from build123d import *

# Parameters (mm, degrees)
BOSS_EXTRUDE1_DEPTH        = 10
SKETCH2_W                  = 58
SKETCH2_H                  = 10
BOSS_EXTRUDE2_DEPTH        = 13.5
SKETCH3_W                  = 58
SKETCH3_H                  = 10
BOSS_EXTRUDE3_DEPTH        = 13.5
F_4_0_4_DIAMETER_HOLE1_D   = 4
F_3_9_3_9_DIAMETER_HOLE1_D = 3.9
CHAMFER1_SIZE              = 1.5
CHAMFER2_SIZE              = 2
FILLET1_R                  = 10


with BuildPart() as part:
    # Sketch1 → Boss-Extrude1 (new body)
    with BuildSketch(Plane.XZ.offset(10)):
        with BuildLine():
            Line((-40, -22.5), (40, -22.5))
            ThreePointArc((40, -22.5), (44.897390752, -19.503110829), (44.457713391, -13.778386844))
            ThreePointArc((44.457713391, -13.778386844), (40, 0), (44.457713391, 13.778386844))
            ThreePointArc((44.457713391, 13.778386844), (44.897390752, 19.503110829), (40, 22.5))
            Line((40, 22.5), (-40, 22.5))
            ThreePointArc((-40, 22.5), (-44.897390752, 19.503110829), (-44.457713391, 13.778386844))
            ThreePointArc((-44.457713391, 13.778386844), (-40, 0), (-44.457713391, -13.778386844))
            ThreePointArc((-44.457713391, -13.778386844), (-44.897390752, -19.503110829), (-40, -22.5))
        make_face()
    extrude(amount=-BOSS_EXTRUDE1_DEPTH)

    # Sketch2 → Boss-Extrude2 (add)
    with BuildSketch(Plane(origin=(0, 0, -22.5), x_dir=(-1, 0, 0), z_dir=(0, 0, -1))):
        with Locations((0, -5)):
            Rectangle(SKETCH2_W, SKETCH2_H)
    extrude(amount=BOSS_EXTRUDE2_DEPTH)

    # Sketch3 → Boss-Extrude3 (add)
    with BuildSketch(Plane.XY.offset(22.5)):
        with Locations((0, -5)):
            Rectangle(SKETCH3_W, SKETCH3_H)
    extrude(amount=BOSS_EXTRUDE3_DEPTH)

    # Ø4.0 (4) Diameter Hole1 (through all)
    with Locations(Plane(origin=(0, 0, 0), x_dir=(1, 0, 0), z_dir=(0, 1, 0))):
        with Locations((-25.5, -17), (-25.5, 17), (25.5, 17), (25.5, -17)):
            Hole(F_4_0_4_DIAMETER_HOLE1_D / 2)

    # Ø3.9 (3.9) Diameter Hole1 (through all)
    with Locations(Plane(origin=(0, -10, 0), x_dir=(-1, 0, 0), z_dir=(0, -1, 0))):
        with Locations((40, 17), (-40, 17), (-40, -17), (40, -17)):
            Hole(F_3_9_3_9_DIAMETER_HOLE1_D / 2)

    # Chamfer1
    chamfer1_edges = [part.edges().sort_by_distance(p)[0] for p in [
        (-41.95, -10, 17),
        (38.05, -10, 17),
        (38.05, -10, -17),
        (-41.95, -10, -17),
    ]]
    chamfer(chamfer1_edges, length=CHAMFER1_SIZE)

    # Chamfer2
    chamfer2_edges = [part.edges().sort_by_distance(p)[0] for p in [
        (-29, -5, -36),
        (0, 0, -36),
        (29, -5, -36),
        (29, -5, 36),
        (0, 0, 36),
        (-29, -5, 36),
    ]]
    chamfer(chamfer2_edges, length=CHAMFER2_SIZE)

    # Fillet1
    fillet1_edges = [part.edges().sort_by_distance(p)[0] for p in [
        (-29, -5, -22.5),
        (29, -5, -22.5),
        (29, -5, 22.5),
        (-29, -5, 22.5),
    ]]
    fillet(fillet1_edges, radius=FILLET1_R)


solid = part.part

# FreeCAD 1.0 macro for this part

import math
import FreeCAD as App
import Part
import Sketcher

V = App.Vector
Q = App.Units.Quantity


def edges_at(feature, points):
    """Names of the edges that pass closest to the given points."""
    edges = feature.Shape.Edges
    near = lambda p: min(range(len(edges)), key=lambda i: edges[i].distToShape(Part.Vertex(*p))[0])
    return sorted({f"Edge{near(p) + 1}" for p in points})

doc = App.newDocument("Part")
body = doc.addObject("PartDesign::Body", "Body")

sketch1 = body.newObject("Sketcher::SketchObject", "Sketch")
sketch1.AttachmentSupport = (doc.getObject("XZ_Plane"), [""])
sketch1.MapMode = "FlatFace"
sketch1.AttachmentOffset = App.Placement(V(0, 0, 10), App.Rotation())
sketch1.addGeometry(Part.LineSegment(V(-40, -22, 0), V(40, -22, 0)), False)
sketch1.addGeometry(Part.ArcOfCircle(Part.Circle(V(40, -17, 0), V(0, 0, 1), 6), math.radians(-90), math.radians(36)), False)
sketch1.addGeometry(Part.ArcOfCircle(Part.Circle(V(64, 0, 0), V(0, 0, 1), 24), math.radians(144), math.radians(216)), False)
sketch1.addGeometry(Part.ArcOfCircle(Part.Circle(V(40, 17, 0), V(0, 0, 1), 6), math.radians(-36), math.radians(90)), False)
sketch1.addGeometry(Part.LineSegment(V(40, 22, 0), V(-40, 22, 0)), False)
sketch1.addGeometry(Part.ArcOfCircle(Part.Circle(V(-40, 17, 0), V(0, 0, 1), 6), math.radians(90), math.radians(216)), False)
sketch1.addGeometry(Part.ArcOfCircle(Part.Circle(V(-64, 0, 0), V(0, 0, 1), 24), math.radians(-36), math.radians(36)), False)
sketch1.addGeometry(Part.ArcOfCircle(Part.Circle(V(-40, -17, 0), V(0, 0, 1), 6), math.radians(144), math.radians(270)), False)
sketch1.addConstraint(Sketcher.Constraint("Tangent", 0, 2, 1, 1))
sketch1.addConstraint(Sketcher.Constraint("Tangent", 1, 2, 2, 2))
sketch1.addConstraint(Sketcher.Constraint("Tangent", 2, 1, 3, 1))
sketch1.addConstraint(Sketcher.Constraint("Tangent", 3, 2, 4, 1))
sketch1.addConstraint(Sketcher.Constraint("Tangent", 4, 2, 5, 1))
sketch1.addConstraint(Sketcher.Constraint("Tangent", 5, 2, 6, 2))
sketch1.addConstraint(Sketcher.Constraint("Tangent", 6, 1, 7, 1))
sketch1.addConstraint(Sketcher.Constraint("Tangent", 7, 2, 0, 1))
sketch1.addConstraint(Sketcher.Constraint("Horizontal", 0))
sketch1.addConstraint(Sketcher.Constraint("Horizontal", 4))
sketch1.addConstraint(Sketcher.Constraint("Equal", 1, 3))
sketch1.addConstraint(Sketcher.Constraint("Equal", 3, 5))
sketch1.addConstraint(Sketcher.Constraint("Equal", 2, 6))
sketch1.addConstraint(Sketcher.Constraint("Equal", 5, 7))
sketch1.addConstraint(Sketcher.Constraint("Symmetric", 1, 3, 5, 3, -1, 1))
sketch1.addConstraint(Sketcher.Constraint("Symmetric", 2, 3, 6, 3, -2))
sketch1.addConstraint(Sketcher.Constraint("Radius", 1, Q("5.5 mm")))
sketch1.addConstraint(Sketcher.Constraint("DistanceX", 0, 1, 0, 2, Q("80 mm")))
sketch1.addConstraint(Sketcher.Constraint("DistanceY", 1, 3, -1, 1, Q("17 mm")))
sketch1.addConstraint(Sketcher.Constraint("Radius", 2, Q("23.522727 mm")))
pad1 = body.newObject("PartDesign::Pad", "Pad")
pad1.Profile = sketch1
pad1.Length = 10
pad1.Reversed = True

sketch2 = body.newObject("Sketcher::SketchObject", "Sketch001")
sketch2.AttachmentSupport = (doc.getObject("XY_Plane"), [""])
sketch2.MapMode = "FlatFace"
sketch2.AttachmentOffset = App.Placement(V(0, 0, -22.5), App.Rotation())
sketch2.addGeometry(Part.LineSegment(V(29, 0, 0), V(29, -10, 0)), False)
sketch2.addGeometry(Part.LineSegment(V(29, -10, 0), V(-29, -10, 0)), False)
sketch2.addGeometry(Part.LineSegment(V(-29, -10, 0), V(-29, 0, 0)), False)
sketch2.addGeometry(Part.LineSegment(V(-29, 0, 0), V(29, 0, 0)), False)
sketch2.addConstraint(Sketcher.Constraint("Coincident", 0, 2, 1, 1))
sketch2.addConstraint(Sketcher.Constraint("Coincident", 1, 2, 2, 1))
sketch2.addConstraint(Sketcher.Constraint("Coincident", 2, 2, 3, 1))
sketch2.addConstraint(Sketcher.Constraint("Coincident", 3, 2, 0, 1))
sketch2.addConstraint(Sketcher.Constraint("Vertical", 0))
sketch2.addConstraint(Sketcher.Constraint("Horizontal", 1))
sketch2.addConstraint(Sketcher.Constraint("Vertical", 2))
sketch2.addConstraint(Sketcher.Constraint("Horizontal", 3))
sketch2.addConstraint(Sketcher.Constraint("Symmetric", 2, 2, 3, 2, -1, 1))
sketch2.addConstraint(Sketcher.Constraint("DistanceX", 1, 2, 1, 1, Q("58 mm")))
sketch2.addConstraint(Sketcher.Constraint("DistanceY", 0, 2, 0, 1, Q("10 mm")))
pad2 = body.newObject("PartDesign::Pad", "Pad001")
pad2.Profile = sketch2
pad2.Length = 13.5
pad2.Reversed = True

sketch3 = body.newObject("Sketcher::SketchObject", "Sketch002")
sketch3.AttachmentSupport = (doc.getObject("XY_Plane"), [""])
sketch3.MapMode = "FlatFace"
sketch3.AttachmentOffset = App.Placement(V(0, 0, 22.5), App.Rotation())
sketch3.addGeometry(Part.LineSegment(V(-29, 0, 0), V(-29, -10, 0)), False)
sketch3.addGeometry(Part.LineSegment(V(-29, -10, 0), V(29, -10, 0)), False)
sketch3.addGeometry(Part.LineSegment(V(29, -10, 0), V(29, 0, 0)), False)
sketch3.addGeometry(Part.LineSegment(V(29, 0, 0), V(-29, 0, 0)), False)
sketch3.addConstraint(Sketcher.Constraint("Coincident", 0, 2, 1, 1))
sketch3.addConstraint(Sketcher.Constraint("Coincident", 1, 2, 2, 1))
sketch3.addConstraint(Sketcher.Constraint("Coincident", 2, 2, 3, 1))
sketch3.addConstraint(Sketcher.Constraint("Coincident", 3, 2, 0, 1))
sketch3.addConstraint(Sketcher.Constraint("Vertical", 0))
sketch3.addConstraint(Sketcher.Constraint("Horizontal", 1))
sketch3.addConstraint(Sketcher.Constraint("Vertical", 2))
sketch3.addConstraint(Sketcher.Constraint("Horizontal", 3))
sketch3.addConstraint(Sketcher.Constraint("Symmetric", 2, 2, 3, 2, -1, 1))
sketch3.addConstraint(Sketcher.Constraint("DistanceX", 1, 1, 1, 2, Q("58 mm")))
sketch3.addConstraint(Sketcher.Constraint("DistanceY", 0, 2, 0, 1, Q("10 mm")))
pad3 = body.newObject("PartDesign::Pad", "Pad002")
pad3.Profile = sketch3
pad3.Length = 13.5

sketch4 = body.newObject("Sketcher::SketchObject", "Sketch003")
sketch4.AttachmentSupport = (doc.getObject("XZ_Plane"), [""])
sketch4.MapMode = "FlatFace"
sketch4.addGeometry(Part.Circle(V(-25.5, 17, 0), V(0, 0, 1), 2), False)
sketch4.addGeometry(Part.Circle(V(-25.5, -17, 0), V(0, 0, 1), 2), False)
sketch4.addGeometry(Part.Circle(V(25.5, -17, 0), V(0, 0, 1), 2), False)
sketch4.addGeometry(Part.Circle(V(25.5, 17, 0), V(0, 0, 1), 2), False)
sketch4.addConstraint(Sketcher.Constraint("Equal", 0, 1))
sketch4.addConstraint(Sketcher.Constraint("Equal", 1, 2))
sketch4.addConstraint(Sketcher.Constraint("Equal", 2, 3))
sketch4.addConstraint(Sketcher.Constraint("Symmetric", 0, 3, 2, 3, -1, 1))
sketch4.addConstraint(Sketcher.Constraint("Symmetric", 1, 3, 3, 3, -1, 1))
sketch4.addConstraint(Sketcher.Constraint("Symmetric", 1, 3, 2, 3, -2))
sketch4.addConstraint(Sketcher.Constraint("Diameter", 0, Q("4 mm")))
sketch4.addConstraint(Sketcher.Constraint("DistanceY", -1, 1, 0, 3, Q("17 mm")))
sketch4.addConstraint(Sketcher.Constraint("DistanceX", 1, 3, 2, 3, Q("51 mm")))
doc.recompute()
hole = body.newObject("PartDesign::Hole", "Hole")
hole.Profile = sketch4
hole.ThreadType = "None"
hole.Diameter = 4
hole.DepthType = "ThroughAll"
hole.Reversed = True

sketch5 = body.newObject("Sketcher::SketchObject", "Sketch004")
sketch5.AttachmentSupport = (doc.getObject("XZ_Plane"), [""])
sketch5.MapMode = "FlatFace"
sketch5.AttachmentOffset = App.Placement(V(0, 0, 10), App.Rotation())
sketch5.addGeometry(Part.Circle(V(-40, -17, 0), V(0, 0, 1), 1.9), False)
sketch5.addGeometry(Part.Circle(V(40, -17, 0), V(0, 0, 1), 1.9), False)
sketch5.addGeometry(Part.Circle(V(40, 17, 0), V(0, 0, 1), 1.9), False)
sketch5.addGeometry(Part.Circle(V(-40, 17, 0), V(0, 0, 1), 1.9), False)
sketch5.addConstraint(Sketcher.Constraint("Equal", 0, 1))
sketch5.addConstraint(Sketcher.Constraint("Equal", 1, 2))
sketch5.addConstraint(Sketcher.Constraint("Equal", 2, 3))
sketch5.addConstraint(Sketcher.Constraint("Symmetric", 0, 3, 2, 3, -1, 1))
sketch5.addConstraint(Sketcher.Constraint("Symmetric", 1, 3, 3, 3, -1, 1))
sketch5.addConstraint(Sketcher.Constraint("Symmetric", 0, 3, 1, 3, -2))
sketch5.addConstraint(Sketcher.Constraint("Diameter", 0, Q("3.9 mm")))
sketch5.addConstraint(Sketcher.Constraint("DistanceX", 0, 3, -1, 1, Q("40 mm")))
sketch5.addConstraint(Sketcher.Constraint("DistanceY", 0, 3, -1, 1, Q("17 mm")))
doc.recompute()
hole2 = body.newObject("PartDesign::Hole", "Hole001")
hole2.Profile = sketch5
hole2.ThreadType = "None"
hole2.Diameter = 3.9
hole2.DepthType = "ThroughAll"
doc.recompute()

chamfer = body.newObject("PartDesign::Chamfer", "Chamfer")
chamfer.Base = (hole2, edges_at(hole2, [
    (-41.95, -10, 17),
    (38.05, -10, 17),
    (38.05, -10, -17),
    (-41.95, -10, -17),
]))
chamfer.Size = 1.5
doc.recompute()

chamfer2 = body.newObject("PartDesign::Chamfer", "Chamfer001")
chamfer2.Base = (chamfer, edges_at(chamfer, [
    (-29, -5, -36),
    (0, 0, -36),
    (29, -5, -36),
    (29, -5, 36),
    (0, 0, 36),
    (-29, -5, 36),
]))
chamfer2.Size = 2
doc.recompute()

fillet = body.newObject("PartDesign::Fillet", "Fillet")
fillet.Base = (chamfer2, edges_at(chamfer2, [
    (-29, -5, -22.5),
    (29, -5, -22.5),
    (29, -5, 22.5),
    (-29, -5, 22.5),
]))
fillet.Radius = 10

doc.recompute()
